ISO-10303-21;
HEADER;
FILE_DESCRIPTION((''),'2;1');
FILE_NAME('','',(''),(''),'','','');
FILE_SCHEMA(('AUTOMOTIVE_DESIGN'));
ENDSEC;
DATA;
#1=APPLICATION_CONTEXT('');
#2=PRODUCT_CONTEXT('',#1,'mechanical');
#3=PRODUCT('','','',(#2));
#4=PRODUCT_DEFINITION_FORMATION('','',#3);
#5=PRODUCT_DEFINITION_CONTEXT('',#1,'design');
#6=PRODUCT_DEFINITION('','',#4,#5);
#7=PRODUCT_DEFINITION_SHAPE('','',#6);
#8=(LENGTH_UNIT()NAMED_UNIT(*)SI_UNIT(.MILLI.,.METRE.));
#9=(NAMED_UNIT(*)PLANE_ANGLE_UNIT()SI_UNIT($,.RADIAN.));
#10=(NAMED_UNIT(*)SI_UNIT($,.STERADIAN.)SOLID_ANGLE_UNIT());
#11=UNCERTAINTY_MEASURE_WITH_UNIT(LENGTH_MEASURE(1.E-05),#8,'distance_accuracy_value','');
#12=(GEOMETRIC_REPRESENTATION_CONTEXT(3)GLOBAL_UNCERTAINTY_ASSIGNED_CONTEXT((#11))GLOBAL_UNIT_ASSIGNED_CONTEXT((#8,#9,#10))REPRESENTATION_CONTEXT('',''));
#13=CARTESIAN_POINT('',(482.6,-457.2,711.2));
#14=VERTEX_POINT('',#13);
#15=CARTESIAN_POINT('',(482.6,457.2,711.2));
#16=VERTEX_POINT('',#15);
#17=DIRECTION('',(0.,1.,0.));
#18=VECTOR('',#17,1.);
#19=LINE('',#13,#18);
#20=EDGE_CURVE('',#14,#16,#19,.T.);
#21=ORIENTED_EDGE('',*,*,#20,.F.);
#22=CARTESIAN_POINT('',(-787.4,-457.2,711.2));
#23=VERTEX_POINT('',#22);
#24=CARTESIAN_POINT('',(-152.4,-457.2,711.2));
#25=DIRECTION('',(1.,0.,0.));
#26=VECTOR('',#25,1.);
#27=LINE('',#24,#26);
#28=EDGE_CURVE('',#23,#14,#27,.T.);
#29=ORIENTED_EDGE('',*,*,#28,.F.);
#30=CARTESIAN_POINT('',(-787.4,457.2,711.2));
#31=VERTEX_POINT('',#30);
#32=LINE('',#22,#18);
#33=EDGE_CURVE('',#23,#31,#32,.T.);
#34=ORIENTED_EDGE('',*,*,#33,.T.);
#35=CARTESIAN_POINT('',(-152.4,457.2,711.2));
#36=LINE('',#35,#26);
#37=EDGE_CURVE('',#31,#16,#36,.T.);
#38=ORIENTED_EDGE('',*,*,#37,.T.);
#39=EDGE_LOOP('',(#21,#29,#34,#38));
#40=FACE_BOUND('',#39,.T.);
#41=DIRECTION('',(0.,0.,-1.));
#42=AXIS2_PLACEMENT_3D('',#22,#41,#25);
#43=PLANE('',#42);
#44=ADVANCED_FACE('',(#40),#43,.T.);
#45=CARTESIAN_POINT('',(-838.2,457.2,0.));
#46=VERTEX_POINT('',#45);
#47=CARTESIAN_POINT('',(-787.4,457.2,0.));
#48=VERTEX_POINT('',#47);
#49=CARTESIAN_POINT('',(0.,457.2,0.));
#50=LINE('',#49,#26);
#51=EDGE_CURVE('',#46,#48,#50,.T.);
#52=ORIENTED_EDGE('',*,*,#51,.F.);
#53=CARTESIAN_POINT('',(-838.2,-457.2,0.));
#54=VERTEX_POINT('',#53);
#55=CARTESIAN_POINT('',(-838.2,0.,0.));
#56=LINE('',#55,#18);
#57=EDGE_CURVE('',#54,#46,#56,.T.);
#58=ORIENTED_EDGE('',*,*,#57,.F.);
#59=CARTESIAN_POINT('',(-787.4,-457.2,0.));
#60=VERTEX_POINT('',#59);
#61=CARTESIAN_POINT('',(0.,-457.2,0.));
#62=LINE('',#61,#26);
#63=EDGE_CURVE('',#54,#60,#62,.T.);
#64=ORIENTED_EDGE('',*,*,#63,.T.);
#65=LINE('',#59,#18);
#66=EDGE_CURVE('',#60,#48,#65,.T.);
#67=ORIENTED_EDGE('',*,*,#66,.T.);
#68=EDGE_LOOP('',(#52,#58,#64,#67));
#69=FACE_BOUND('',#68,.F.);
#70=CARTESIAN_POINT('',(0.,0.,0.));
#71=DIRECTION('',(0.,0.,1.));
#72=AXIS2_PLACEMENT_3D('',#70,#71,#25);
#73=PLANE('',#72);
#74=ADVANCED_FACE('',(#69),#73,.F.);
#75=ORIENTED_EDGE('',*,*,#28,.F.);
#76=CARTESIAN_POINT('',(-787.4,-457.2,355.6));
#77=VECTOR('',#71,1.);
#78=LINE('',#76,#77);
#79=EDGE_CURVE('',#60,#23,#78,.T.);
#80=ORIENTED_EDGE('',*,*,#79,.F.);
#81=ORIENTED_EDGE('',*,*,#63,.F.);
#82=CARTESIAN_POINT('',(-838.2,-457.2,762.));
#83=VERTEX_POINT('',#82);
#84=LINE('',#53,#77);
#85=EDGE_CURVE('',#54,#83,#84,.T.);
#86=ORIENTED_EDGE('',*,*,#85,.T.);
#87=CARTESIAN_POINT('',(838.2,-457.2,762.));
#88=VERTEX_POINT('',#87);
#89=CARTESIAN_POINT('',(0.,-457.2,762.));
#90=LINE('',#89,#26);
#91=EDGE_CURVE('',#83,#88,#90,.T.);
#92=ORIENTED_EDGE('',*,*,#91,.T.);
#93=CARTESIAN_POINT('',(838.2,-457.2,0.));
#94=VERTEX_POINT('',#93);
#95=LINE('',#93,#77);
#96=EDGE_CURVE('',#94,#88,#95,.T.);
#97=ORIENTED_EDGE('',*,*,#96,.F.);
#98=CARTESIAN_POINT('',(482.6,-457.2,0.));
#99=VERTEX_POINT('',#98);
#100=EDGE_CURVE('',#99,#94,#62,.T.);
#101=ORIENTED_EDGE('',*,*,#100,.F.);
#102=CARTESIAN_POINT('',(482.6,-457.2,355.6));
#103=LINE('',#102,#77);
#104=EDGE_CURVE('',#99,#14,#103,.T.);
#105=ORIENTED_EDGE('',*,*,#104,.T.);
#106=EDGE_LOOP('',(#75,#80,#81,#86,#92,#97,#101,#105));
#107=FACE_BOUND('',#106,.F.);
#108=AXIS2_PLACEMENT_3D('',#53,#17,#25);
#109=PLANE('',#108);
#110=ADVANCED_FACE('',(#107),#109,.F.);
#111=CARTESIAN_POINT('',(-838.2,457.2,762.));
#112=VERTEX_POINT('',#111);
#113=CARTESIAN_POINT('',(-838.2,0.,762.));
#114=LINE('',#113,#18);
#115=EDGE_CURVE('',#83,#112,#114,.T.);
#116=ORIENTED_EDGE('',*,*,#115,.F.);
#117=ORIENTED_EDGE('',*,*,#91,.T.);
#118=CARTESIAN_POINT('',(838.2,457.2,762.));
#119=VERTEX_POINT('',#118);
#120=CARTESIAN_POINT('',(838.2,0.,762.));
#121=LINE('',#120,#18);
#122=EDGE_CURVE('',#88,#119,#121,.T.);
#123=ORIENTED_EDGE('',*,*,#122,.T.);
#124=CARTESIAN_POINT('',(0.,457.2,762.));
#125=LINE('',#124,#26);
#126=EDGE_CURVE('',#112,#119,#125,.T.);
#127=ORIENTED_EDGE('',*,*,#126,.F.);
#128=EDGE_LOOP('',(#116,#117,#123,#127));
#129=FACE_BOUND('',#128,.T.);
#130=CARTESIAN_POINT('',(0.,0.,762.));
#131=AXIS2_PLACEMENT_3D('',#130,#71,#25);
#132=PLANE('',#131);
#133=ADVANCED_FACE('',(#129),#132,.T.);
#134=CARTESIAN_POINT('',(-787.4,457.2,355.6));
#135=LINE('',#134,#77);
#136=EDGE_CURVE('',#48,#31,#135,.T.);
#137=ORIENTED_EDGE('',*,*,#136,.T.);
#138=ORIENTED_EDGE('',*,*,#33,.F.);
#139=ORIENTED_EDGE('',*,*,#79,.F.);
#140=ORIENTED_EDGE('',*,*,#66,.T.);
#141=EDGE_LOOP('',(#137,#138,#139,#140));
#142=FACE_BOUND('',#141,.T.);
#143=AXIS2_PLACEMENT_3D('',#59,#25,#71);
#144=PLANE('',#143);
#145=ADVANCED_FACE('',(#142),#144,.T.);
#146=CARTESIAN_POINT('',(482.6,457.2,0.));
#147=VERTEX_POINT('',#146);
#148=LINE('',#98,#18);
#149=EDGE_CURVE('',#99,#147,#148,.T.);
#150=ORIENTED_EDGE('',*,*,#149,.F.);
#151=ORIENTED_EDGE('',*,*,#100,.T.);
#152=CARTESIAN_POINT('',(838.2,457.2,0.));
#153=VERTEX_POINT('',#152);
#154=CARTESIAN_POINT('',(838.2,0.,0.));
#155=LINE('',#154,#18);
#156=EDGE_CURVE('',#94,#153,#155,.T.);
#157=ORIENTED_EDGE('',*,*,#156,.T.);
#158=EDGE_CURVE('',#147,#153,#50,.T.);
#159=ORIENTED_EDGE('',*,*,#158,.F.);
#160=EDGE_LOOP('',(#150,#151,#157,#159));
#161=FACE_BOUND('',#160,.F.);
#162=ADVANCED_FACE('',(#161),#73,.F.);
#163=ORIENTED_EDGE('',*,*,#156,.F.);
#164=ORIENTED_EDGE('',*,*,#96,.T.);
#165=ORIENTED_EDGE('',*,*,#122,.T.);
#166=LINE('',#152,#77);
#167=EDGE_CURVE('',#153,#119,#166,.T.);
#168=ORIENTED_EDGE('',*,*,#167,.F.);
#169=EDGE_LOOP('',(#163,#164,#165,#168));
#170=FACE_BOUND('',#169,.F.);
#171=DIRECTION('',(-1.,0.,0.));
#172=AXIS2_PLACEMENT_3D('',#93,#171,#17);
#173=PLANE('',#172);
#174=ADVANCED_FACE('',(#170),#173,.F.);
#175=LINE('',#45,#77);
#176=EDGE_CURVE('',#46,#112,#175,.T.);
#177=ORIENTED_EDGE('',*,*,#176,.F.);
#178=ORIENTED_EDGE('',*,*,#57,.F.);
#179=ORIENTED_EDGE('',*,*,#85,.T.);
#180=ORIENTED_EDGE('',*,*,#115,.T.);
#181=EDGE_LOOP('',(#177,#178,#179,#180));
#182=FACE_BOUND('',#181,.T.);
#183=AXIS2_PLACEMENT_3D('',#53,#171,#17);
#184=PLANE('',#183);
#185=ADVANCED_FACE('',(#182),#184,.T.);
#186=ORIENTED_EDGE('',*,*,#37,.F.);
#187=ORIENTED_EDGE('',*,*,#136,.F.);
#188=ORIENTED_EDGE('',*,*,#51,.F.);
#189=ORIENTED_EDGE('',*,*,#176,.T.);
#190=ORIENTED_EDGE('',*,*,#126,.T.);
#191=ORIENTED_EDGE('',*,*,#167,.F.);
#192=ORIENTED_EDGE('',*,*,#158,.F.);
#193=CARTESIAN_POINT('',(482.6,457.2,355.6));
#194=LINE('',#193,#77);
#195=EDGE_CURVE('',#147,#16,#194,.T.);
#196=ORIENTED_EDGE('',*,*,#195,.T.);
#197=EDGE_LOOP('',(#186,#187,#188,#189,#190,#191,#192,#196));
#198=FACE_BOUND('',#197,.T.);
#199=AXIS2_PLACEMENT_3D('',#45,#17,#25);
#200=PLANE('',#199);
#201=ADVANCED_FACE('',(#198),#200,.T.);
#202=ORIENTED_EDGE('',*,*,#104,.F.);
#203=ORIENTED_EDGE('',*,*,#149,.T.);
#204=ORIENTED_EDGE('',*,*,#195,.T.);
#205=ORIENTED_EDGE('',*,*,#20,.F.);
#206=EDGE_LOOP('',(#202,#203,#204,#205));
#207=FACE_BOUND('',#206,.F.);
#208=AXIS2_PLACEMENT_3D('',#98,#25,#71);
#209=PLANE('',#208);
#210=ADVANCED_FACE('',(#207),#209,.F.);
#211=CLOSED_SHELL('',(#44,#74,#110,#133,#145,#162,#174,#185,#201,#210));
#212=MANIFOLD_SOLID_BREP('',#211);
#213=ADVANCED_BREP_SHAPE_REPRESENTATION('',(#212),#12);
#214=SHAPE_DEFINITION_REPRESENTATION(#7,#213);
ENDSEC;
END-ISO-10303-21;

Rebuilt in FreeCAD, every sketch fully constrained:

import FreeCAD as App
import Part
import Sketcher

V = App.Vector
Q = App.Units.Quantity


def add_polygon(sketch, points):
    """Adds a closed chain of lines whose ends are joined by coincident constraints."""
    first, n = sketch.GeometryCount, len(points)
    for a, b in zip(points, points[1:] + points[:1]):
        sketch.addGeometry(Part.LineSegment(App.Vector(*a, 0), App.Vector(*b, 0)), False)
    for i in range(n):
        sketch.addConstraint(Sketcher.Constraint("Coincident", first + i, 2, first + (i + 1) % n, 1))

doc = App.newDocument("Part")
params = doc.addObject("Spreadsheet::Sheet", "Params")
for row, (alias, value) in enumerate([
    ("sketch1_width", "66 in"),
    ("sketch1_height", "36 in"),
    ("pad1_length", "30 in"),
    ("sketch2_width", "50 in"),
    ("sketch2_height", "28 in"),
], start=1):
    params.set(f"A{row}", alias)
    params.set(f"B{row}", "=" + value)
    params.setAlias(f"B{row}", alias)

body = doc.addObject("PartDesign::Body", "Body")

sketch1 = body.newObject("Sketcher::SketchObject", "Sketch")
sketch1.AttachmentSupport = (doc.getObject("XY_Plane"), [""])
sketch1.MapMode = "FlatFace"
add_polygon(sketch1, [(-838.2, 457.2), (-838.2, -457.2), (838.2, -457.2), (838.2, 457.2)])
sketch1.addConstraint([
    Sketcher.Constraint("Vertical", 0),
    Sketcher.Constraint("Horizontal", 1),
    Sketcher.Constraint("Vertical", 2),
    Sketcher.Constraint("Horizontal", 3),
    Sketcher.Constraint("Symmetric", 0, 2, 2, 2, -1, 1),
    Sketcher.Constraint("DistanceX", 1, 1, 1, 2, Q("66 in")),
    Sketcher.Constraint("DistanceY", 0, 2, 0, 1, Q("36 in")),
])
sketch1.setExpression("Constraints[9]", "Params.sketch1_width")
sketch1.setExpression("Constraints[10]", "Params.sketch1_height")
pad1 = body.newObject("PartDesign::Pad", "Pad")
pad1.Profile = sketch1
pad1.setExpression("Length", "Params.pad1_length")

sketch2 = body.newObject("Sketcher::SketchObject", "Sketch001")
sketch2.AttachmentSupport = (doc.getObject("XZ_Plane"), [""])
sketch2.MapMode = "FlatFace"
sketch2.AttachmentOffset = App.Placement(V(0, 0, 18 * 25.4), App.Rotation())
add_polygon(sketch2, [(-787.4, 711.2), (-787.4, 0), (482.6, 0), (482.6, 711.2)])
sketch2.addConstraint([
    Sketcher.Constraint("Vertical", 0),
    Sketcher.Constraint("Horizontal", 1),
    Sketcher.Constraint("Vertical", 2),
    Sketcher.Constraint("Horizontal", 3),
    Sketcher.Constraint("PointOnObject", 0, 2, -1),
    Sketcher.Constraint("DistanceX", 1, 1, 1, 2, Q("50 in")),
    Sketcher.Constraint("DistanceY", 0, 2, 0, 1, Q("28 in")),
    Sketcher.Constraint("DistanceX", 0, 2, -1, 1, Q("31 in")),
])
sketch2.setExpression("Constraints[9]", "Params.sketch2_width")
sketch2.setExpression("Constraints[10]", "Params.sketch2_height")
pocket1 = body.newObject("PartDesign::Pocket", "Pocket")
pocket1.Profile = sketch2
pocket1.Type = "ThroughAll"

doc.recompute()
